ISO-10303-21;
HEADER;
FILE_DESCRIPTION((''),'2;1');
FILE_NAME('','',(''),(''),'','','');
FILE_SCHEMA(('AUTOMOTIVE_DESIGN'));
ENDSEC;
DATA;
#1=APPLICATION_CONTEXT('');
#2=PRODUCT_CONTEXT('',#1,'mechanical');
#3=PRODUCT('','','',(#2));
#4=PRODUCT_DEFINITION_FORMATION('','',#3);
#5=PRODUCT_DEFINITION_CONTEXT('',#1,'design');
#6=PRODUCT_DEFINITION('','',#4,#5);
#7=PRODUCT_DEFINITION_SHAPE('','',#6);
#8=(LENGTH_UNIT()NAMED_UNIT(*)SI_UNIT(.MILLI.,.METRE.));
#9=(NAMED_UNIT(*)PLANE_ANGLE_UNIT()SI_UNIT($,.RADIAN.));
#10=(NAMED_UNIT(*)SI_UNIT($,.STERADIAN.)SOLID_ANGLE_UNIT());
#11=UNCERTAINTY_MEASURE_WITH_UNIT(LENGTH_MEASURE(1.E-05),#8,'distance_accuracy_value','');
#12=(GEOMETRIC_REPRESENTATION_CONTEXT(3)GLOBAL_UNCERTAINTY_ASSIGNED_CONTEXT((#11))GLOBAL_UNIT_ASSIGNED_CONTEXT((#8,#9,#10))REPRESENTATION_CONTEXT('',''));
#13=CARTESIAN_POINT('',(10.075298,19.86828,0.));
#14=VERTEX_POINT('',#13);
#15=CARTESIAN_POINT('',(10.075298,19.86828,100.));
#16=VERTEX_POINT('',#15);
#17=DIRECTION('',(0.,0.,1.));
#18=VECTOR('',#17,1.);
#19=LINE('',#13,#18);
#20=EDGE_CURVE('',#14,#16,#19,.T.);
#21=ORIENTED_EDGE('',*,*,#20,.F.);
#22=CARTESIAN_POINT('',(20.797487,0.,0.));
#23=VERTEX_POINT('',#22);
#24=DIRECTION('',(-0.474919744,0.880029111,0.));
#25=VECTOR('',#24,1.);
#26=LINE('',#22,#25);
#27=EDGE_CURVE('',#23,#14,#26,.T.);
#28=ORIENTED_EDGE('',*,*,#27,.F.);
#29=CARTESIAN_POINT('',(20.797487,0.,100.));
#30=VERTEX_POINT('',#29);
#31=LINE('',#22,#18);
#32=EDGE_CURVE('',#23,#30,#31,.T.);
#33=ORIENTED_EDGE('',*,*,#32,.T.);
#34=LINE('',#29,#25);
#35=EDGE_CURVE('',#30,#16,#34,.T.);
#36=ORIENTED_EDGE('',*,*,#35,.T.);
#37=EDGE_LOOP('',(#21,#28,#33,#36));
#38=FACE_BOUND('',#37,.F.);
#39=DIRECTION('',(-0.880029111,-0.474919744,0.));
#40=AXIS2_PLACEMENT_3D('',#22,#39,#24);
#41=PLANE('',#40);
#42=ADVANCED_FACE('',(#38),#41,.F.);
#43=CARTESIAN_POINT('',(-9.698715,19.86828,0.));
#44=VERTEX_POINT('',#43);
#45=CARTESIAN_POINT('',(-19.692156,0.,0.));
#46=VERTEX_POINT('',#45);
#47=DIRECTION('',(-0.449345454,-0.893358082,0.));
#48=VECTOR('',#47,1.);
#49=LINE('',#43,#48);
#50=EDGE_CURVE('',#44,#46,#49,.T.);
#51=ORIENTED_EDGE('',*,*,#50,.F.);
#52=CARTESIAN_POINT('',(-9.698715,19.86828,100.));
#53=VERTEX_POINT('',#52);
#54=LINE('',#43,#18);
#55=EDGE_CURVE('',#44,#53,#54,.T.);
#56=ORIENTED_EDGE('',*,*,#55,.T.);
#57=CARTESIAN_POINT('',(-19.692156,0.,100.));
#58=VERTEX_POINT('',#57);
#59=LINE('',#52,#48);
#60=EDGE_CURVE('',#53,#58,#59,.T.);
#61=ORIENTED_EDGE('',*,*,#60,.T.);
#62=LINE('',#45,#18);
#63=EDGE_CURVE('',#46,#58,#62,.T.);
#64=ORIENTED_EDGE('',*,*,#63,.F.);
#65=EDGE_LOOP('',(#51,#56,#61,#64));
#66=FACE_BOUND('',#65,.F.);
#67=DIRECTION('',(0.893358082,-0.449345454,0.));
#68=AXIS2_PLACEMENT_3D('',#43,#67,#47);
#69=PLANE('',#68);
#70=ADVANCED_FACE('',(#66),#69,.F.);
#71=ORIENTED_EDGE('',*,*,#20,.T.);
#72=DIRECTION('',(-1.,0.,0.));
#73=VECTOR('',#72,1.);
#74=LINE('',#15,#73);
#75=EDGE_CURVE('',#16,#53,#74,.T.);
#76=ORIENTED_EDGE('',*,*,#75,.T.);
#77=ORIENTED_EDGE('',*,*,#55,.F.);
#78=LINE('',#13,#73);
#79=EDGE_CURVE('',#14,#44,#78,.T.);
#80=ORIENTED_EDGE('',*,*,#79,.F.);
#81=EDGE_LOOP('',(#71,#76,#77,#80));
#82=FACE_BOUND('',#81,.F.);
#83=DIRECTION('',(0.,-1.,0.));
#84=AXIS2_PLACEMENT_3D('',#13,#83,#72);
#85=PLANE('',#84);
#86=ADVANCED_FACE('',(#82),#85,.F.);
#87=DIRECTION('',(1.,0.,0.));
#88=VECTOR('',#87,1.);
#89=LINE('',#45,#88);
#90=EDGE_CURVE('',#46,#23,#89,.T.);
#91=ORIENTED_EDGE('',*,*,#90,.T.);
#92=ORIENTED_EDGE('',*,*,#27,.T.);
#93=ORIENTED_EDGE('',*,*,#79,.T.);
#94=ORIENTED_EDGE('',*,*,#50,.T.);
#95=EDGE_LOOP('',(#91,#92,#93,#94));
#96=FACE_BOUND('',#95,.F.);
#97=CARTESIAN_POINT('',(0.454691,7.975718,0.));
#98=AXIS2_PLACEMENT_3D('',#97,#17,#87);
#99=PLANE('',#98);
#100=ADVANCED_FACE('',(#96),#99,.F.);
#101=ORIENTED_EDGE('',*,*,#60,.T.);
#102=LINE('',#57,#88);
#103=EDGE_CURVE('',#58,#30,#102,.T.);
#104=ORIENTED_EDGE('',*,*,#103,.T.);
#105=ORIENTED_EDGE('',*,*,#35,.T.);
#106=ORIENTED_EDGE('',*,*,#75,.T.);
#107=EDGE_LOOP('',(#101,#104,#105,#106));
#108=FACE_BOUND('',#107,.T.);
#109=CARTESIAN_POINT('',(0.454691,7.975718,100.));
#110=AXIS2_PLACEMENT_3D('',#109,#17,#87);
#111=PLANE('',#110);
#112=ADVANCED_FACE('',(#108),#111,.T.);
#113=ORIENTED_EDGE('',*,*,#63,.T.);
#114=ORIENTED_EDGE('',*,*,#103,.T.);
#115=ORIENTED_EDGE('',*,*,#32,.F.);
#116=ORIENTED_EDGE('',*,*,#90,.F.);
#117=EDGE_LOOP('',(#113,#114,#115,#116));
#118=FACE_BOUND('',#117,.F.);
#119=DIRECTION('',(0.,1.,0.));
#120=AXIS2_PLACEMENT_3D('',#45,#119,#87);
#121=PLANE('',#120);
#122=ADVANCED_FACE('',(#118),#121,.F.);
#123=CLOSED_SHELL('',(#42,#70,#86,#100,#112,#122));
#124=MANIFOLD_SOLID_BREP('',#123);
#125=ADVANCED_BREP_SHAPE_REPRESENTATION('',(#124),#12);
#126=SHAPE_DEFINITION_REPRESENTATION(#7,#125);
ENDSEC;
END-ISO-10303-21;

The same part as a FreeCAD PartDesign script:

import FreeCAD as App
import Part
import Sketcher
from FreeCAD import Vector

doc = App.newDocument("Part")
params = doc.addObject("Spreadsheet::Sheet", "Params")
for row, (alias, value) in enumerate([
    ("pad1_length", "100 mm"),
], start=1):
    params.set(f"A{row}", alias)
    params.set(f"B{row}", "=" + value)
    params.setAlias(f"B{row}", alias)

body = doc.addObject("PartDesign::Body", "Body")

sketch1 = body.newObject("Sketcher::SketchObject", "Sketch")
sketch1.AttachmentSupport = (doc.getObject("XY_Plane"), [""])
sketch1.MapMode = "FlatFace"
sketch1.addGeometry(Part.LineSegment(Vector(21, 0, 0), Vector(10, 20, 0)), False)
sketch1.addGeometry(Part.LineSegment(Vector(10, 20, 0), Vector(-10, 20, 0)), False)
sketch1.addGeometry(Part.LineSegment(Vector(-10, 20, 0), Vector(-20, 0, 0)), False)
sketch1.addGeometry(Part.LineSegment(Vector(-20, 0, 0), Vector(21, 0, 0)), False)
sketch1.addConstraint(Sketcher.Constraint("Coincident", 0, 2, 1, 1))
sketch1.addConstraint(Sketcher.Constraint("Coincident", 1, 2, 2, 1))
sketch1.addConstraint(Sketcher.Constraint("Coincident", 2, 2, 3, 1))
sketch1.addConstraint(Sketcher.Constraint("Coincident", 3, 2, 0, 1))
sketch1.addConstraint(Sketcher.Constraint("Horizontal", 1))
sketch1.addConstraint(Sketcher.Constraint("Horizontal", 3))
sketch1.addConstraint(Sketcher.Constraint("PointOnObject", 2, 2, -1))
sketch1.addConstraint(Sketcher.Constraint("DistanceX", 1, 2, 3, 2, 30.496202))
sketch1.addConstraint(Sketcher.Constraint("DistanceX", 1, 2, 1, 1, 19.774013))
sketch1.addConstraint(Sketcher.Constraint("DistanceX", 3, 1, 3, 2, 40.489643))
sketch1.addConstraint(Sketcher.Constraint("DistanceY", -1, 1, 0, 2, 19.86828))
sketch1.addConstraint(Sketcher.Constraint("DistanceX", -1, 1, 0, 2, 10.075298))
pad1 = body.newObject("PartDesign::Pad", "Pad")
pad1.Profile = sketch1
pad1.setExpression("Length", "Params.pad1_length")

doc.recompute()
